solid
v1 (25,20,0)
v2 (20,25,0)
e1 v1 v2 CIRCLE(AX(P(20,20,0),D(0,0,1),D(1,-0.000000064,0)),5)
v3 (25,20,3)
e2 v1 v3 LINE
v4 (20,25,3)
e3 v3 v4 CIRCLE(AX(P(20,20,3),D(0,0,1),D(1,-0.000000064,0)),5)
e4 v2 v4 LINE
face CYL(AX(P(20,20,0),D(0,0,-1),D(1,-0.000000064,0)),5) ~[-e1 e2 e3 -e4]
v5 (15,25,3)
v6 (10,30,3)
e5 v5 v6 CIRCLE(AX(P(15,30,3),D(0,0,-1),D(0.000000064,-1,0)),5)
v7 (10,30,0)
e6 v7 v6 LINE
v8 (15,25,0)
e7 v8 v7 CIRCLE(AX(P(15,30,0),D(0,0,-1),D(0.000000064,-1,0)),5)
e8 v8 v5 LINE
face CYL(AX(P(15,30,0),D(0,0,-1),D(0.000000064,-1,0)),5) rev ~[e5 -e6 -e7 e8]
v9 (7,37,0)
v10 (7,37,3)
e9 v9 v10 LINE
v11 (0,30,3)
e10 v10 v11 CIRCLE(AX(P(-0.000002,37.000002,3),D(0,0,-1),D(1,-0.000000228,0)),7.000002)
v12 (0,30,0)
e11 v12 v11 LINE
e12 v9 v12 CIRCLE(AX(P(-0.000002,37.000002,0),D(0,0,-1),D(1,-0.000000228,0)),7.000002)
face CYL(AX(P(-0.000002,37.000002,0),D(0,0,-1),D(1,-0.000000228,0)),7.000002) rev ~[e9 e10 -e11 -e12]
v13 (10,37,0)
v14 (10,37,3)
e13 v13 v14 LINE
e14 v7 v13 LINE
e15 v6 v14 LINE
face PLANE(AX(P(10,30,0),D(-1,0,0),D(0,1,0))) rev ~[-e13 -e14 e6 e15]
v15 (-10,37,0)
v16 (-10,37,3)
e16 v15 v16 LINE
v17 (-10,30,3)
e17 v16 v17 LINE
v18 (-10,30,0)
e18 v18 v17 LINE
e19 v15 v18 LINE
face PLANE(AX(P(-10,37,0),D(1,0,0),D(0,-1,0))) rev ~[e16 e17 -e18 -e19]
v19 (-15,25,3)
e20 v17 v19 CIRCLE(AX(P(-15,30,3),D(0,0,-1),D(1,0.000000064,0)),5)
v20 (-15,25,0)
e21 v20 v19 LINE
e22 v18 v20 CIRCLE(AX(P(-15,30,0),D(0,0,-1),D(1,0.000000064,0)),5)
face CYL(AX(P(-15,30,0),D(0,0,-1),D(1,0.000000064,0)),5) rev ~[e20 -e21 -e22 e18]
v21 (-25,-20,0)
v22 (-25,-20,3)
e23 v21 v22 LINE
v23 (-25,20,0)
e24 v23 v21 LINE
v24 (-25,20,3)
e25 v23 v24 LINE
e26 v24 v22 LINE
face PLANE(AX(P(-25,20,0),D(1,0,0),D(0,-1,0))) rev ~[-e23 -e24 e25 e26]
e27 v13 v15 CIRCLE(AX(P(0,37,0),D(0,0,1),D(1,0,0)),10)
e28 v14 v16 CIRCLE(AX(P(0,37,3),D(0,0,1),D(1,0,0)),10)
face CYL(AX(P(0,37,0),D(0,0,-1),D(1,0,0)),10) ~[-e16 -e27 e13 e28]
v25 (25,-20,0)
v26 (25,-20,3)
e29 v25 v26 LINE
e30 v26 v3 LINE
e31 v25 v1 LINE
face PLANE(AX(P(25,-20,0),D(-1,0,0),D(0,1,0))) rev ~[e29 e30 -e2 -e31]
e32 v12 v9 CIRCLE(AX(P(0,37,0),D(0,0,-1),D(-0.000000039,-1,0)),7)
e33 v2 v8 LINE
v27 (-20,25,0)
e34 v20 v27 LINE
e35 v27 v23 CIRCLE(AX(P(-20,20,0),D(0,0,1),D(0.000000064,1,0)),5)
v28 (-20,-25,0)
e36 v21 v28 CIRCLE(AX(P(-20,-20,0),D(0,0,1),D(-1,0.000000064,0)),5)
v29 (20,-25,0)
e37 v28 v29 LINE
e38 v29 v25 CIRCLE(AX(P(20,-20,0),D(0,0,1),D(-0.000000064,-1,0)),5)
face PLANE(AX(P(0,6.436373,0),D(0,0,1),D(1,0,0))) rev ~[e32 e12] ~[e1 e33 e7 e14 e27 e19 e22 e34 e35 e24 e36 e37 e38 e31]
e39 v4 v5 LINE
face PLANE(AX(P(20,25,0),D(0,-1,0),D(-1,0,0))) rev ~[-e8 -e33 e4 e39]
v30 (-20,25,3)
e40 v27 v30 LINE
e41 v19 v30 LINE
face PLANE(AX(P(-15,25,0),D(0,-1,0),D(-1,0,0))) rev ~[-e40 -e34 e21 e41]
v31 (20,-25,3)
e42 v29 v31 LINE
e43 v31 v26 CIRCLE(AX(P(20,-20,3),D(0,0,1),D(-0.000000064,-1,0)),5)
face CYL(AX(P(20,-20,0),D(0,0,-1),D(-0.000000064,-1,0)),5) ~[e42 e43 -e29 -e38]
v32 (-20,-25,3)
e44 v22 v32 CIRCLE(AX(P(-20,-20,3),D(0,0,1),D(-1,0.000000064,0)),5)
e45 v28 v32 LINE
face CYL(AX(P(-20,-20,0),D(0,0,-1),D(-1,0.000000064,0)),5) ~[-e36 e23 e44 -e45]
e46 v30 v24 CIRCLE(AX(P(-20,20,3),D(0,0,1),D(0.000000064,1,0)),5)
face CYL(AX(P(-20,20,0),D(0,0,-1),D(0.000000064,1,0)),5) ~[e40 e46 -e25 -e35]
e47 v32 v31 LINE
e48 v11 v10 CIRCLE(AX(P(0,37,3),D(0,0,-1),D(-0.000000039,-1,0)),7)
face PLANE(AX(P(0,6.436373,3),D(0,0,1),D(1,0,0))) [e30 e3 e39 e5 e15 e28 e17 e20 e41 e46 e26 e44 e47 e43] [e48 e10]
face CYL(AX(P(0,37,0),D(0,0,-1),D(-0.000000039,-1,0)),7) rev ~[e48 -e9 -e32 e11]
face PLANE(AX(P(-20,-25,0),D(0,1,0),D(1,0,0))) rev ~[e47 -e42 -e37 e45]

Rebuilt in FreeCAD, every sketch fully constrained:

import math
import FreeCAD as App
import Part
import Sketcher
Q = App.Units.Quantity

doc = App.newDocument("Part")
params = doc.addObject("Spreadsheet::Sheet", "Params")
for row, (alias, value) in enumerate([
    ("sketch1_radius", "5 mm"),
    ("sketch1_radius2", "10 mm"),
    ("sketch1_radius3", "7.000002 mm"),
    ("sketch1_width", "40 mm"),
    ("pad1_length", "3 mm"),
], start=1):
    params.set(f"A{row}", alias)
    params.set(f"B{row}", "=" + value)
    params.setAlias(f"B{row}", alias)

body = doc.addObject("PartDesign::Body", "Body")

# Sketch on XY plane
sketch1 = body.newObject("Sketcher::SketchObject", "Sketch")
sketch1.AttachmentSupport = (doc.getObject("XY_Plane"), [""])
sketch1.MapMode = "FlatFace"
sketch1.addGeometry(Part.LineSegment(App.Vector(-20, -25, 0), App.Vector(20, -25, 0)), False)
sketch1.addGeometry(Part.ArcOfCircle(Part.Circle(App.Vector(20, -20, 0), App.Vector(0, 0, 1), 5), math.radians(-90.000004), math.radians(0.000004)), False)
sketch1.addGeometry(Part.LineSegment(App.Vector(25, -20, 0), App.Vector(25, 20, 0)), False)
sketch1.addGeometry(Part.ArcOfCircle(Part.Circle(App.Vector(20, 20, 0), App.Vector(0, 0, 1), 5), math.radians(-0.000004), math.radians(90.000004)), False)
sketch1.addGeometry(Part.LineSegment(App.Vector(20, 25, 0), App.Vector(15, 25, 0)), False)
sketch1.addGeometry(Part.ArcOfCircle(Part.Circle(App.Vector(15, 30, 0), App.Vector(0, 0, 1), 5), math.radians(179.999996), math.radians(270.000004)), False)
sketch1.addGeometry(Part.LineSegment(App.Vector(10, 30, 0), App.Vector(10, 37, 0)), False)
sketch1.addGeometry(Part.ArcOfCircle(Part.Circle(App.Vector(0, 37, 0), App.Vector(0, 0, 1), 10), math.radians(0), math.radians(180)), False)
sketch1.addGeometry(Part.LineSegment(App.Vector(-10, 37, 0), App.Vector(-10, 30, 0)), False)
sketch1.addGeometry(Part.ArcOfCircle(Part.Circle(App.Vector(-15, 30, 0), App.Vector(0, 0, 1), 5), math.radians(-90.000004), math.radians(0.000004)), False)
sketch1.addGeometry(Part.LineSegment(App.Vector(-15, 25, 0), App.Vector(-20, 25, 0)), False)
sketch1.addGeometry(Part.ArcOfCircle(Part.Circle(App.Vector(-20, 20, 0), App.Vector(0, 0, 1), 5), math.radians(89.999996), math.radians(180.000004)), False)
sketch1.addGeometry(Part.LineSegment(App.Vector(-25, 20, 0), App.Vector(-25, -20, 0)), False)
sketch1.addGeometry(Part.ArcOfCircle(Part.Circle(App.Vector(-20, -20, 0), App.Vector(0, 0, 1), 5), math.radians(179.999996), math.radians(270.000004)), False)
sketch1.addGeometry(Part.ArcOfCircle(Part.Circle(App.Vector(-0.000002, 37.000002, 0), App.Vector(0, 0, 1), 7.000002), math.radians(-89.999987), math.radians(-0.000013)), False)
sketch1.addGeometry(Part.ArcOfCircle(Part.Circle(App.Vector(0, 37, 0), App.Vector(0, 0, 1), 7), math.radians(0.000002), math.radians(269.999998)), False)
sketch1.addConstraint(Sketcher.Constraint("Tangent", 0, 2, 1, 1))
sketch1.addConstraint(Sketcher.Constraint("Tangent", 1, 2, 2, 1))
sketch1.addConstraint(Sketcher.Constraint("Tangent", 2, 2, 3, 1))
sketch1.addConstraint(Sketcher.Constraint("Tangent", 3, 2, 4, 1))
sketch1.addConstraint(Sketcher.Constraint("Tangent", 4, 2, 5, 2))
sketch1.addConstraint(Sketcher.Constraint("Tangent", 5, 1, 6, 1))
sketch1.addConstraint(Sketcher.Constraint("Tangent", 6, 2, 7, 1))
sketch1.addConstraint(Sketcher.Constraint("Tangent", 7, 2, 8, 1))
sketch1.addConstraint(Sketcher.Constraint("Tangent", 8, 2, 9, 2))
sketch1.addConstraint(Sketcher.Constraint("Tangent", 9, 1, 10, 1))
sketch1.addConstraint(Sketcher.Constraint("Tangent", 10, 2, 11, 1))
sketch1.addConstraint(Sketcher.Constraint("Tangent", 11, 2, 12, 1))
sketch1.addConstraint(Sketcher.Constraint("Tangent", 12, 2, 13, 1))
sketch1.addConstraint(Sketcher.Constraint("Tangent", 13, 2, 0, 1))
sketch1.addConstraint(Sketcher.Constraint("Tangent", 14, 1, 15, 2))
sketch1.addConstraint(Sketcher.Constraint("Coincident", 15, 1, 14, 2))
sketch1.addConstraint(Sketcher.Constraint("Horizontal", 0))
sketch1.addConstraint(Sketcher.Constraint("Vertical", 2))
sketch1.addConstraint(Sketcher.Constraint("Horizontal", 4))
sketch1.addConstraint(Sketcher.Constraint("Vertical", 6))
sketch1.addConstraint(Sketcher.Constraint("Vertical", 8))
sketch1.addConstraint(Sketcher.Constraint("Horizontal", 10))
sketch1.addConstraint(Sketcher.Constraint("Vertical", 12))
sketch1.addConstraint(Sketcher.Constraint("Coincident", 14, 3, 7, 3))
sketch1.addConstraint(Sketcher.Constraint("Equal", 1, 3))
sketch1.addConstraint(Sketcher.Constraint("Equal", 3, 5))
sketch1.addConstraint(Sketcher.Constraint("Equal", 5, 9))
sketch1.addConstraint(Sketcher.Constraint("Equal", 9, 11))
sketch1.addConstraint(Sketcher.Constraint("Equal", 11, 13))
sketch1.addConstraint(Sketcher.Constraint("Symmetric", 1, 3, 11, 3, -1, 1))
sketch1.addConstraint(Sketcher.Constraint("Symmetric", 5, 3, 9, 3, -2))
sketch1.addConstraint(Sketcher.Constraint("PointOnObject", 14, 1, -2))
sketch1.addConstraint(Sketcher.Constraint("Horizontal", 8, 2, 14, 1))
sketch1.addConstraint(Sketcher.Constraint("Horizontal", 7, 2, 15, 1))
sketch1.addConstraint(Sketcher.Constraint("Equal", 0, 2))
sketch1.addConstraint(Sketcher.Constraint("Radius", 1, Q("5 mm")))
sketch1.addConstraint(Sketcher.Constraint("Radius", 7, Q("10 mm")))
sketch1.addConstraint(Sketcher.Constraint("Radius", 14, Q("7.000002 mm")))
sketch1.addConstraint(Sketcher.Constraint("DistanceX", 0, 1, 0, 2, Q("40 mm")))
sketch1.setExpression("Constraints[35]", "Params.sketch1_radius")
sketch1.setExpression("Constraints[36]", "Params.sketch1_radius2")
sketch1.setExpression("Constraints[37]", "Params.sketch1_radius3")
sketch1.setExpression("Constraints[38]", "Params.sketch1_width")
pad1 = body.newObject("PartDesign::Pad", "Pad")
pad1.Profile = sketch1
pad1.setExpression("Length", "Params.pad1_length")

doc.recompute()
